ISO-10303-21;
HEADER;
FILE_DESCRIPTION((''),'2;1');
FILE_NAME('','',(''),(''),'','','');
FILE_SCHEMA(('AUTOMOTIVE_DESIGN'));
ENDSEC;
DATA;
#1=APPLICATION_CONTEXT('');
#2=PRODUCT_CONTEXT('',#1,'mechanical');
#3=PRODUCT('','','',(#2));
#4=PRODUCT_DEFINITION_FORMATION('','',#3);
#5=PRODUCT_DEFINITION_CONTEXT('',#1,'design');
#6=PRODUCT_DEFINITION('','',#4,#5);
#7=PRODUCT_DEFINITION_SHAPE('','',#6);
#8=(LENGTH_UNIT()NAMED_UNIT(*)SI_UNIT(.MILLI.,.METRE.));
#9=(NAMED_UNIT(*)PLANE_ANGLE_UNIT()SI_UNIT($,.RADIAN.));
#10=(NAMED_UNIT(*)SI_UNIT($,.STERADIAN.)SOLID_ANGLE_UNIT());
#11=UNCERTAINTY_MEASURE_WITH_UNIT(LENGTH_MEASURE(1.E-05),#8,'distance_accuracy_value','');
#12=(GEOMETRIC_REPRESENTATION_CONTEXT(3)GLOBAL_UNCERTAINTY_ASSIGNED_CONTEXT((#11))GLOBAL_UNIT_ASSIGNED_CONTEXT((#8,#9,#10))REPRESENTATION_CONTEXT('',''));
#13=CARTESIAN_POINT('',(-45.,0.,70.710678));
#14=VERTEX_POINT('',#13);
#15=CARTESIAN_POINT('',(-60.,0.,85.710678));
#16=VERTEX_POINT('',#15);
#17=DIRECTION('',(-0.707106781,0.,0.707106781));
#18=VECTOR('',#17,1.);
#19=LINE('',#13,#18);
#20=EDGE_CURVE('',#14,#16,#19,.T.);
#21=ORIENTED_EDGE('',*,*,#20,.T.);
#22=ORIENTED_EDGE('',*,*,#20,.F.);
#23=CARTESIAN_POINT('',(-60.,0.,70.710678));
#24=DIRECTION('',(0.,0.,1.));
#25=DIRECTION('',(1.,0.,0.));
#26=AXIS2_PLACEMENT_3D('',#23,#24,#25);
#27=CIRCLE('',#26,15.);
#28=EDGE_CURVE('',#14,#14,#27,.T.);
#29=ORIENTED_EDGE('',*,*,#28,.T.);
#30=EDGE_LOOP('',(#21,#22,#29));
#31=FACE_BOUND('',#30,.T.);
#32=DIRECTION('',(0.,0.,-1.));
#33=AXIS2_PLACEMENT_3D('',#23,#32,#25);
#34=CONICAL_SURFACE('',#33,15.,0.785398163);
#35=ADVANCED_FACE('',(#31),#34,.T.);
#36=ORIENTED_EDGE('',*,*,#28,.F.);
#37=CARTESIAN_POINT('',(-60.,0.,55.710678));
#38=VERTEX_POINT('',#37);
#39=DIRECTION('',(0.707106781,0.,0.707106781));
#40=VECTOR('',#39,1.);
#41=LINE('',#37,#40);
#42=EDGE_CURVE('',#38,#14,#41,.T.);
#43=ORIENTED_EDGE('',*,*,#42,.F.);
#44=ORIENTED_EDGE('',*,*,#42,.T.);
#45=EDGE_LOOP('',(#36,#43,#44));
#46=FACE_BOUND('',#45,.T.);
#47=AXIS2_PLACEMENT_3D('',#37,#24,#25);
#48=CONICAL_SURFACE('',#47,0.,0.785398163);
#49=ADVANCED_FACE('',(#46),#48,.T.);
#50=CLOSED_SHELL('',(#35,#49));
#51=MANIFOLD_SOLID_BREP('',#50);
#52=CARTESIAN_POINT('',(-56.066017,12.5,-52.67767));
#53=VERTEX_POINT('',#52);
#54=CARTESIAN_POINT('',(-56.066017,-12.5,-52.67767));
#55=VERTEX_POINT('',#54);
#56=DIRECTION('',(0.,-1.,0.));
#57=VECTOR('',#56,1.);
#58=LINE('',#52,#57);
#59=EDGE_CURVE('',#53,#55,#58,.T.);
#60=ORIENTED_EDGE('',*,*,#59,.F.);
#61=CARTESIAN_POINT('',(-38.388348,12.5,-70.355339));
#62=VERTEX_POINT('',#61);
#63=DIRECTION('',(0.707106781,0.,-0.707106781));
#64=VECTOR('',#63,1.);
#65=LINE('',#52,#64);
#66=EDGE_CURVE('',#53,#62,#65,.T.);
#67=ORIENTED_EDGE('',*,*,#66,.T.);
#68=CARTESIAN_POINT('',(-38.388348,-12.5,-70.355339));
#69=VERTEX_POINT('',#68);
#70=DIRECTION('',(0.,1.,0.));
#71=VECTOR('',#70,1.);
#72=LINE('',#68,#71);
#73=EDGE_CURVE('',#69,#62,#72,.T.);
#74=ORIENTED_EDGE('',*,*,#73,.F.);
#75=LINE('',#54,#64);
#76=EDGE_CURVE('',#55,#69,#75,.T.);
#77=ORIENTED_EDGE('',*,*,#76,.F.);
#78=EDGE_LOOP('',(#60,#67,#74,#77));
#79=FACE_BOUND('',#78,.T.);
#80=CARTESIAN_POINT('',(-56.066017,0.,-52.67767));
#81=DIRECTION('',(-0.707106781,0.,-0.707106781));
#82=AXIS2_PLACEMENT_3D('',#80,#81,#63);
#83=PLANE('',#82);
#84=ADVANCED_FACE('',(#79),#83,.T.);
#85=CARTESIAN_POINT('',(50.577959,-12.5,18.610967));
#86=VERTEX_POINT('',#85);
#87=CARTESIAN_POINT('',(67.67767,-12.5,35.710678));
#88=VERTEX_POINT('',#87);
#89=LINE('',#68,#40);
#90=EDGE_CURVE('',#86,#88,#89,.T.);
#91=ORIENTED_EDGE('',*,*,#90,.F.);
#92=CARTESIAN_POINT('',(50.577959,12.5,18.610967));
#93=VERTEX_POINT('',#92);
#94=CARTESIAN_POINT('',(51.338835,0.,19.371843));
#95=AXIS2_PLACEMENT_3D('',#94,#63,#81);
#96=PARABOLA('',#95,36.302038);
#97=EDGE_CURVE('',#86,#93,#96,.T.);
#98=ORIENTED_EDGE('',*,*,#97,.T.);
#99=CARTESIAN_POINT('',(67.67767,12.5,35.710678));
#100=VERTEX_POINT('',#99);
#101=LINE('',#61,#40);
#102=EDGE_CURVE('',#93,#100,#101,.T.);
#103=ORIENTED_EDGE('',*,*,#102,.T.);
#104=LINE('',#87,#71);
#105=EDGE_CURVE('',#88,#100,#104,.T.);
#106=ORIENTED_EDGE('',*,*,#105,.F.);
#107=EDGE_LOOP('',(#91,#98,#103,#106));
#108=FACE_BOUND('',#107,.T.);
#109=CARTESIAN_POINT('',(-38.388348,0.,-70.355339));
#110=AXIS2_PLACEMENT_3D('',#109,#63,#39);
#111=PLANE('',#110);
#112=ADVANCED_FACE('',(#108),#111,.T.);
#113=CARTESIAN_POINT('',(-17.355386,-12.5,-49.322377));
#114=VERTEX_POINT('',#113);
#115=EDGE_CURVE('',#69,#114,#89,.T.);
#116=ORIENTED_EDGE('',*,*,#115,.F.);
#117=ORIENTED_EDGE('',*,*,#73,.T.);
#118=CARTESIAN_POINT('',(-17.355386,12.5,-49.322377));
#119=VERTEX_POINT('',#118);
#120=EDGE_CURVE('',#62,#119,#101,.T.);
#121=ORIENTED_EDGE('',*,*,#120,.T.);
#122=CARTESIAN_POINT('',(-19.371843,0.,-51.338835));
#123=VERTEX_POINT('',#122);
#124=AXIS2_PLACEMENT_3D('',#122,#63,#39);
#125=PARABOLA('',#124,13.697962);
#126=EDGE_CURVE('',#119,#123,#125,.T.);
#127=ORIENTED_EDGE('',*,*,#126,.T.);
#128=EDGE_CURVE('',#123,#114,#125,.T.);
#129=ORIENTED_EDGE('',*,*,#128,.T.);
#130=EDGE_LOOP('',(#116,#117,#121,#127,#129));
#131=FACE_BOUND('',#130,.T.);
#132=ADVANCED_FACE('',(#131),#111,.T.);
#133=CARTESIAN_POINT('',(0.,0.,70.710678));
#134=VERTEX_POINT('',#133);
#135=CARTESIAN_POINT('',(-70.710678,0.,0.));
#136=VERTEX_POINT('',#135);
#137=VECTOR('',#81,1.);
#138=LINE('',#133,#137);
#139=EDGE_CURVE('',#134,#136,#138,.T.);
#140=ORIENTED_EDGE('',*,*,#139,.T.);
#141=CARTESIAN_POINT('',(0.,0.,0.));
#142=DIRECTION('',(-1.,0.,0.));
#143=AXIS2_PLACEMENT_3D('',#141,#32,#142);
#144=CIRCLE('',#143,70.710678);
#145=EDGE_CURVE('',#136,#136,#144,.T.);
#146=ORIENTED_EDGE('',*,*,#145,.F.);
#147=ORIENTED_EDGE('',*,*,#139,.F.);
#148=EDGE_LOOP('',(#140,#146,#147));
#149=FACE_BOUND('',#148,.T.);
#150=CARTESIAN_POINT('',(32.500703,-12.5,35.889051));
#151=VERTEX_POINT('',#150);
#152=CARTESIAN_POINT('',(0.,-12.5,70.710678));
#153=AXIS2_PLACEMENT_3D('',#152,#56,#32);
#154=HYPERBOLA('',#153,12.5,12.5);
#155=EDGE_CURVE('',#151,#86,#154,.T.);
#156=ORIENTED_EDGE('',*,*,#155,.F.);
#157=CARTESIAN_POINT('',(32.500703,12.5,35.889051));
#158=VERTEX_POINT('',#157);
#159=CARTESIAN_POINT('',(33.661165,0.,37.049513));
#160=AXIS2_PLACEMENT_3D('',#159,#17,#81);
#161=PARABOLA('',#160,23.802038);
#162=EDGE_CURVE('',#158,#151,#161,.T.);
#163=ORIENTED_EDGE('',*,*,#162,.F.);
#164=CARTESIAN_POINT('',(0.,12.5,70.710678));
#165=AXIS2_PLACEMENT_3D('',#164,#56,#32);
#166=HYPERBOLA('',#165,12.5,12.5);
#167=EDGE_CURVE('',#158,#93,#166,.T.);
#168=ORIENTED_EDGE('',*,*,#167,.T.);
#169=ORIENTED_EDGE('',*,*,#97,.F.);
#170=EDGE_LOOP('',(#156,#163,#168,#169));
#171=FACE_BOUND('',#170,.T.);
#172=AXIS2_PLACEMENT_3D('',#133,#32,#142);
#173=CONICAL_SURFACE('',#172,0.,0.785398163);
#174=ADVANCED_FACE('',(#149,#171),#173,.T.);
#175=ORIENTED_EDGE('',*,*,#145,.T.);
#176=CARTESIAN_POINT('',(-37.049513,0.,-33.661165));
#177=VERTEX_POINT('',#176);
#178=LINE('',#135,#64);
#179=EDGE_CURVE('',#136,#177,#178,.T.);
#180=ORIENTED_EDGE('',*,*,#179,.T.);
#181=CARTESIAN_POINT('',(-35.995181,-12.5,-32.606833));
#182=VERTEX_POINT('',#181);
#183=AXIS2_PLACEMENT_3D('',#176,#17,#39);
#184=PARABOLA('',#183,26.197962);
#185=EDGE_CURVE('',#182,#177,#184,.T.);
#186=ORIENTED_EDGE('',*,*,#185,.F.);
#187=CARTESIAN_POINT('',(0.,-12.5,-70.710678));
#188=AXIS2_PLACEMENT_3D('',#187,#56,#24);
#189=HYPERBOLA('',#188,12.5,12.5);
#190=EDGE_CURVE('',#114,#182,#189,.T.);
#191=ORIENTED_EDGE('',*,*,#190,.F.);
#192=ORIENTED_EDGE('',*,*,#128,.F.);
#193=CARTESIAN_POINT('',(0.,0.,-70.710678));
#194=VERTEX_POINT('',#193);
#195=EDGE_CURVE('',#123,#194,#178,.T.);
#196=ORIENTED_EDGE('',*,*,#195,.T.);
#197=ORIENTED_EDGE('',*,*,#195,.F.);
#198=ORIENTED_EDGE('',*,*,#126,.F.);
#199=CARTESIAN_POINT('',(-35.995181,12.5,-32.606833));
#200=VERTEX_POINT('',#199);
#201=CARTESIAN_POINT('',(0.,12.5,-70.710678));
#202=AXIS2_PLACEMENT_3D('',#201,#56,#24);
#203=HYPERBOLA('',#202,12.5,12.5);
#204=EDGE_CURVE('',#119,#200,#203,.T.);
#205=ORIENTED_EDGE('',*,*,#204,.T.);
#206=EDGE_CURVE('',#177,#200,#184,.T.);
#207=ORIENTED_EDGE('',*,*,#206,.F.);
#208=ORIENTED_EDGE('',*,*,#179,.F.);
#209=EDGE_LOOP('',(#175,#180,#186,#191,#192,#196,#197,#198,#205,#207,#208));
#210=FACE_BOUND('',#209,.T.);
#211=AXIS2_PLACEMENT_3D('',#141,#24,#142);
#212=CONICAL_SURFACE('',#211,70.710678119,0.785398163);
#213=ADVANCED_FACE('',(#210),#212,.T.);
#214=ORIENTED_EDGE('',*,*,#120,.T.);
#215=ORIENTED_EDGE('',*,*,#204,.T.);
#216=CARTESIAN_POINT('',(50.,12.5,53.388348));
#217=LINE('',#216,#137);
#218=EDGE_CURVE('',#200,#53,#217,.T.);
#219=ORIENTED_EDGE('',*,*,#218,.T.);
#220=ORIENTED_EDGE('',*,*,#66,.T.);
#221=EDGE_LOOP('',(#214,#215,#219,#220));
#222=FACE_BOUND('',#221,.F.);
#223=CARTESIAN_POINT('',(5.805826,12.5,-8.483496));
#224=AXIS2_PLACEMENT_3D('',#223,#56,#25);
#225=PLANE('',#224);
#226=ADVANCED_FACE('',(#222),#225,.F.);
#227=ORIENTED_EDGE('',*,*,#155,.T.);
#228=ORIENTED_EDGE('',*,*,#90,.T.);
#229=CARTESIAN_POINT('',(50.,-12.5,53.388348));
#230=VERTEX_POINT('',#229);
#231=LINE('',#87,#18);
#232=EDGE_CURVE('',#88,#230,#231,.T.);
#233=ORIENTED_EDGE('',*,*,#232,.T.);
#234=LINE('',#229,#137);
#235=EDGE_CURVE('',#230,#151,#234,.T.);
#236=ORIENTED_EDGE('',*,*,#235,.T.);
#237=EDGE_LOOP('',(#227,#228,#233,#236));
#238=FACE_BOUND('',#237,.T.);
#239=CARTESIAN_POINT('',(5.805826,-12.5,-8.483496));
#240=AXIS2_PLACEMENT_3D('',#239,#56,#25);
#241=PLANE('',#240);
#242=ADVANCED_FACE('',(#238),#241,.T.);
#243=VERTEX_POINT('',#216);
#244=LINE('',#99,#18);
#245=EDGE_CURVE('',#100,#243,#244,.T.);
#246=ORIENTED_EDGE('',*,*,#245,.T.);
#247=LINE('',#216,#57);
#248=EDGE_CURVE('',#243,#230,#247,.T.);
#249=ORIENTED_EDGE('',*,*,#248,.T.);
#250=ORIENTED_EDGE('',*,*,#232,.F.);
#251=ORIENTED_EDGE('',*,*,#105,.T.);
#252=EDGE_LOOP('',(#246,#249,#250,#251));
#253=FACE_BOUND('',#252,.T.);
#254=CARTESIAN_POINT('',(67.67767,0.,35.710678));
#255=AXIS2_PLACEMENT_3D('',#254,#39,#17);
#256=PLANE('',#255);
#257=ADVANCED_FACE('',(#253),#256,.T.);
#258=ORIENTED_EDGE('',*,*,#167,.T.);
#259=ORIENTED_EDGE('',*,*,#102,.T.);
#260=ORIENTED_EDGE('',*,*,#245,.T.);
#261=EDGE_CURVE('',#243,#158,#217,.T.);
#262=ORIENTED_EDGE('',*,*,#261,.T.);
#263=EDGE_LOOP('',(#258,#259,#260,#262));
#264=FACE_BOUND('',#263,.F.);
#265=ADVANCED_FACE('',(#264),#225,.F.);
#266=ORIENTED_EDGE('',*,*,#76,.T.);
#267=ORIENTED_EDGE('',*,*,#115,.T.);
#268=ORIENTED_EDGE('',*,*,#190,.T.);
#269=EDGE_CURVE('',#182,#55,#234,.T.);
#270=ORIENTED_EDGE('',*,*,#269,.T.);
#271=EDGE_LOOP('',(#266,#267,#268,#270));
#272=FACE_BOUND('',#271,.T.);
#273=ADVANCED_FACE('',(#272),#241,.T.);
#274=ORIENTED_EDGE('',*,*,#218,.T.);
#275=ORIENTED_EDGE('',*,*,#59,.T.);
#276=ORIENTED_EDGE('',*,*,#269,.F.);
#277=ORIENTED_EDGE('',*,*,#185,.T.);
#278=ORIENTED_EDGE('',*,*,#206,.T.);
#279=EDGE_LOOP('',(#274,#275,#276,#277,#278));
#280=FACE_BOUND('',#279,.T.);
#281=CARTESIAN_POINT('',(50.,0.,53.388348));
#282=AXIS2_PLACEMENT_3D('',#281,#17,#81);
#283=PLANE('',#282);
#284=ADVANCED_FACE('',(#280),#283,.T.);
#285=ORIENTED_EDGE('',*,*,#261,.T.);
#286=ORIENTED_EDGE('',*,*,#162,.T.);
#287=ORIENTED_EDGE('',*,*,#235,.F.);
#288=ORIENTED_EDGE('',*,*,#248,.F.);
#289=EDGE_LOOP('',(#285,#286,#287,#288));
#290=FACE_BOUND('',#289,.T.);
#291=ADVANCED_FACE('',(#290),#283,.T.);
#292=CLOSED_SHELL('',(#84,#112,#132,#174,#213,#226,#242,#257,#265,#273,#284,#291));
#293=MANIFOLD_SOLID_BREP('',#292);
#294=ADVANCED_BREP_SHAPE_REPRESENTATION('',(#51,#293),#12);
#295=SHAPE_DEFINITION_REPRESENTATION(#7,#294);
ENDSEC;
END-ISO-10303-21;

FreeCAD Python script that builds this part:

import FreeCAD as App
import Part
import Sketcher

V = App.Vector
Q = App.Units.Quantity

doc = App.newDocument("Part")
params = doc.addObject("Spreadsheet::Sheet", "Params")
for row, (alias, value) in enumerate([
    ("sketch1_length", "100 mm"),
    ("revolution_angle", "360 deg"),
    ("sketch2_length", "25 mm"),
    ("sketch2_length2", "150 mm"),
    ("pad1_length", "25 mm"),
    ("sketch3_height", "30 mm"),
    ("revolution2_angle", "360 deg"),
], start=1):
    params.set(f"A{row}", alias)
    params.set(f"B{row}", "=" + value)
    params.setAlias(f"B{row}", alias)

body = doc.addObject("PartDesign::Body", "Body")

sketch1 = doc.addObject("Sketcher::SketchObject", "Sketch")
body.addObject(sketch1)
sketch1.AttachmentSupport = (doc.XZ_Plane, [""])
sketch1.MapMode = "FlatFace"
sketch1.addGeometry([
    Part.LineSegment(V(0, -70.710678, 0), V(0, 70.710678, 0)),
    Part.LineSegment(V(0, 70.710678, 0), V(-70.710678, 0, 0)),
    Part.LineSegment(V(-70.710678, 0, 0), V(0, -70.710678, 0)),
], False)
sketch1.addConstraint([
    Sketcher.Constraint("Coincident", 0, 2, 1, 1),
    Sketcher.Constraint("Coincident", 1, 2, 2, 1),
    Sketcher.Constraint("Coincident", 2, 2, 0, 1),
    Sketcher.Constraint("Vertical", 0),
    Sketcher.Constraint("Symmetric", 0, 2, 2, 2, -1, 1),
    Sketcher.Constraint("PointOnObject", 1, 2, -1),
    Sketcher.Constraint("Perpendicular", 1, 2),
    Sketcher.Constraint("Distance", 1, Q("100 mm")),
])
sketch1.setExpression("Constraints[7]", "Params.sketch1_length")
revolution = doc.addObject("PartDesign::Revolution", "Revolution")
body.addObject(revolution)
revolution.Profile = sketch1
revolution.ReferenceAxis = (sketch1, ["V_Axis"])
revolution.setExpression("Angle", "Params.revolution_angle")

sketch2 = doc.addObject("Sketcher::SketchObject", "Sketch001")
body.addObject(sketch2)
sketch2.AttachmentSupport = (doc.XZ_Plane, [""])
sketch2.MapMode = "FlatFace"
sketch2.addGeometry([
    Part.LineSegment(V(67.67767, 35.710678, 0), V(50, 53.388348, 0)),
    Part.LineSegment(V(50, 53.388348, 0), V(-56.066017, -52.67767, 0)),
    Part.LineSegment(V(-56.066017, -52.67767, 0), V(-38.388348, -70.355339, 0)),
    Part.LineSegment(V(-38.388348, -70.355339, 0), V(67.67767, 35.710678, 0)),
], False)
sketch2.addConstraint([
    Sketcher.Constraint("Coincident", 0, 2, 1, 1),
    Sketcher.Constraint("Coincident", 1, 2, 2, 1),
    Sketcher.Constraint("Coincident", 2, 2, 3, 1),
    Sketcher.Constraint("Coincident", 3, 2, 0, 1),
    Sketcher.Constraint("Perpendicular", 0, 1),
    Sketcher.Constraint("Perpendicular", 1, 2),
    Sketcher.Constraint("Perpendicular", 2, 3),
    Sketcher.Constraint("Angle", 0, Q("135 deg")),
    Sketcher.Constraint("Distance", 0, Q("25 mm")),
    Sketcher.Constraint("Distance", 1, Q("150 mm")),
    Sketcher.Constraint("DistanceX", -1, 1, 0, 2, Q("50 mm")),
    Sketcher.Constraint("DistanceY", 1, 2, -1, 1, Q("52.67767 mm")),
])
sketch2.setExpression("Constraints[8]", "Params.sketch2_length")
sketch2.setExpression("Constraints[9]", "Params.sketch2_length2")
pad1 = doc.addObject("PartDesign::Pad", "Pad")
body.addObject(pad1)
pad1.Profile = sketch2
pad1.setExpression("Length", "Params.pad1_length")
pad1.Midplane = True
body2 = doc.addObject("PartDesign::Body", "Body001")

sketch3 = doc.addObject("Sketcher::SketchObject", "Sketch002")
body2.addObject(sketch3)
sketch3.AttachmentSupport = (doc.getObject("XZ_Plane001"), [""])
sketch3.MapMode = "FlatFace"
sketch3.addGeometry([
    Part.LineSegment(V(-60, 55.710678, 0), V(-45, 70.710678, 0)),
    Part.LineSegment(V(-45, 70.710678, 0), V(-60, 85.710678, 0)),
    Part.LineSegment(V(-60, 85.710678, 0), V(-60, 55.710678, 0)),
], False)
sketch3.addGeometry(Part.LineSegment(V(-60, 55.710678, 0), V(-60, 85.710678, 0)), True)
sketch3.addConstraint([
    Sketcher.Constraint("Coincident", 0, 2, 1, 1),
    Sketcher.Constraint("Coincident", 1, 2, 2, 1),
    Sketcher.Constraint("Coincident", 2, 2, 0, 1),
    Sketcher.Constraint("Vertical", 2),
    Sketcher.Constraint("Vertical", 3),
    Sketcher.Constraint("Coincident", 3, 1, 2, 2),
    Sketcher.Constraint("Perpendicular", 0, 1),
    Sketcher.Constraint("Equal", 2, 3),
    Sketcher.Constraint("Equal", 0, 1),
    Sketcher.Constraint("DistanceY", 2, 2, 2, 1, Q("30 mm")),
    Sketcher.Constraint("DistanceX", 0, 2, -1, 1, Q("45 mm")),
    Sketcher.Constraint("DistanceY", -1, 1, 0, 2, Q("70.710678 mm")),
])
sketch3.setExpression("Constraints[9]", "Params.sketch3_height")
revolution2 = doc.addObject("PartDesign::Revolution", "Revolution001")
body2.addObject(revolution2)
revolution2.Profile = sketch3
revolution2.ReferenceAxis = (sketch3, ["Axis0"])
revolution2.setExpression("Angle", "Params.revolution2_angle")

doc.recompute()
